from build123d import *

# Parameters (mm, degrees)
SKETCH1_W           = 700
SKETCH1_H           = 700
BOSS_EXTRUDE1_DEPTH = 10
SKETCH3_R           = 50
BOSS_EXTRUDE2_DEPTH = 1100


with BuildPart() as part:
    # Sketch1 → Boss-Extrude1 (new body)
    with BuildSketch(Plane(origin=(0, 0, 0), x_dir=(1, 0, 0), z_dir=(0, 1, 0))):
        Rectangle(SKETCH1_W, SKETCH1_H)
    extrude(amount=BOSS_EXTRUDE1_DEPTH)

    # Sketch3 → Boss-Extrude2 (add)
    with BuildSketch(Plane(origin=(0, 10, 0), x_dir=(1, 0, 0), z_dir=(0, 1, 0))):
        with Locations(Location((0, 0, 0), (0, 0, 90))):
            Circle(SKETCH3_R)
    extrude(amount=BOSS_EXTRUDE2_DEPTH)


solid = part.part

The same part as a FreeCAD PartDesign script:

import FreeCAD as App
import Part
import Sketcher

doc = App.newDocument("Part")
body = doc.addObject("PartDesign::Body", "Body")

# Sketch on XZ plane
sketch1 = body.newObject("Sketcher::SketchObject", "Sketch")
sketch1.AttachmentSupport = (doc.getObject("XZ_Plane"), [""])
sketch1.MapMode = "FlatFace"
sketch1.addGeometry([
    Part.LineSegment(App.Vector(-350, -350, 0), App.Vector(-350, 350, 0)),
    Part.LineSegment(App.Vector(-350, 350, 0), App.Vector(350, 350, 0)),
    Part.LineSegment(App.Vector(350, 350, 0), App.Vector(350, -350, 0)),
    Part.LineSegment(App.Vector(350, -350, 0), App.Vector(-350, -350, 0)),
], False)
sketch1.addConstraint([
    Sketcher.Constraint("Coincident", 0, 2, 1, 1),
    Sketcher.Constraint("Coincident", 1, 2, 2, 1),
    Sketcher.Constraint("Coincident", 2, 2, 3, 1),
    Sketcher.Constraint("Coincident", 3, 2, 0, 1),
    Sketcher.Constraint("Vertical", 0),
    Sketcher.Constraint("Horizontal", 1),
    Sketcher.Constraint("Vertical", 2),
    Sketcher.Constraint("Horizontal", 3),
    Sketcher.Constraint("Symmetric", 0, 2, 2, 2, -1, 1),
    Sketcher.Constraint("Equal", 3, 0),
    Sketcher.Constraint("DistanceX", 1, 1, 1, 2, 700.0),
])
pad1 = body.newObject("PartDesign::Pad", "Pad")
pad1.Profile = sketch1
pad1.Length = 10
pad1.Reversed = True

# Sketch on XZ plane
sketch2 = body.newObject("Sketcher::SketchObject", "Sketch001")
sketch2.AttachmentSupport = (doc.getObject("XZ_Plane"), [""])
sketch2.MapMode = "FlatFace"
sketch2.AttachmentOffset = App.Placement(App.Vector(0, 0, -10), App.Rotation())
sketch2.addGeometry(Part.Circle(App.Vector(0, 0, 0), App.Vector(0, 0, 1), 50), False)
sketch2.addConstraint([
    Sketcher.Constraint("Coincident", 0, 3, -1, 1),
    Sketcher.Constraint("Diameter", 0, 100.0),
])
pad2 = body.newObject("PartDesign::Pad", "Pad001")
pad2.Profile = sketch2
pad2.Length = 1100
pad2.Reversed = True

doc.recompute()
